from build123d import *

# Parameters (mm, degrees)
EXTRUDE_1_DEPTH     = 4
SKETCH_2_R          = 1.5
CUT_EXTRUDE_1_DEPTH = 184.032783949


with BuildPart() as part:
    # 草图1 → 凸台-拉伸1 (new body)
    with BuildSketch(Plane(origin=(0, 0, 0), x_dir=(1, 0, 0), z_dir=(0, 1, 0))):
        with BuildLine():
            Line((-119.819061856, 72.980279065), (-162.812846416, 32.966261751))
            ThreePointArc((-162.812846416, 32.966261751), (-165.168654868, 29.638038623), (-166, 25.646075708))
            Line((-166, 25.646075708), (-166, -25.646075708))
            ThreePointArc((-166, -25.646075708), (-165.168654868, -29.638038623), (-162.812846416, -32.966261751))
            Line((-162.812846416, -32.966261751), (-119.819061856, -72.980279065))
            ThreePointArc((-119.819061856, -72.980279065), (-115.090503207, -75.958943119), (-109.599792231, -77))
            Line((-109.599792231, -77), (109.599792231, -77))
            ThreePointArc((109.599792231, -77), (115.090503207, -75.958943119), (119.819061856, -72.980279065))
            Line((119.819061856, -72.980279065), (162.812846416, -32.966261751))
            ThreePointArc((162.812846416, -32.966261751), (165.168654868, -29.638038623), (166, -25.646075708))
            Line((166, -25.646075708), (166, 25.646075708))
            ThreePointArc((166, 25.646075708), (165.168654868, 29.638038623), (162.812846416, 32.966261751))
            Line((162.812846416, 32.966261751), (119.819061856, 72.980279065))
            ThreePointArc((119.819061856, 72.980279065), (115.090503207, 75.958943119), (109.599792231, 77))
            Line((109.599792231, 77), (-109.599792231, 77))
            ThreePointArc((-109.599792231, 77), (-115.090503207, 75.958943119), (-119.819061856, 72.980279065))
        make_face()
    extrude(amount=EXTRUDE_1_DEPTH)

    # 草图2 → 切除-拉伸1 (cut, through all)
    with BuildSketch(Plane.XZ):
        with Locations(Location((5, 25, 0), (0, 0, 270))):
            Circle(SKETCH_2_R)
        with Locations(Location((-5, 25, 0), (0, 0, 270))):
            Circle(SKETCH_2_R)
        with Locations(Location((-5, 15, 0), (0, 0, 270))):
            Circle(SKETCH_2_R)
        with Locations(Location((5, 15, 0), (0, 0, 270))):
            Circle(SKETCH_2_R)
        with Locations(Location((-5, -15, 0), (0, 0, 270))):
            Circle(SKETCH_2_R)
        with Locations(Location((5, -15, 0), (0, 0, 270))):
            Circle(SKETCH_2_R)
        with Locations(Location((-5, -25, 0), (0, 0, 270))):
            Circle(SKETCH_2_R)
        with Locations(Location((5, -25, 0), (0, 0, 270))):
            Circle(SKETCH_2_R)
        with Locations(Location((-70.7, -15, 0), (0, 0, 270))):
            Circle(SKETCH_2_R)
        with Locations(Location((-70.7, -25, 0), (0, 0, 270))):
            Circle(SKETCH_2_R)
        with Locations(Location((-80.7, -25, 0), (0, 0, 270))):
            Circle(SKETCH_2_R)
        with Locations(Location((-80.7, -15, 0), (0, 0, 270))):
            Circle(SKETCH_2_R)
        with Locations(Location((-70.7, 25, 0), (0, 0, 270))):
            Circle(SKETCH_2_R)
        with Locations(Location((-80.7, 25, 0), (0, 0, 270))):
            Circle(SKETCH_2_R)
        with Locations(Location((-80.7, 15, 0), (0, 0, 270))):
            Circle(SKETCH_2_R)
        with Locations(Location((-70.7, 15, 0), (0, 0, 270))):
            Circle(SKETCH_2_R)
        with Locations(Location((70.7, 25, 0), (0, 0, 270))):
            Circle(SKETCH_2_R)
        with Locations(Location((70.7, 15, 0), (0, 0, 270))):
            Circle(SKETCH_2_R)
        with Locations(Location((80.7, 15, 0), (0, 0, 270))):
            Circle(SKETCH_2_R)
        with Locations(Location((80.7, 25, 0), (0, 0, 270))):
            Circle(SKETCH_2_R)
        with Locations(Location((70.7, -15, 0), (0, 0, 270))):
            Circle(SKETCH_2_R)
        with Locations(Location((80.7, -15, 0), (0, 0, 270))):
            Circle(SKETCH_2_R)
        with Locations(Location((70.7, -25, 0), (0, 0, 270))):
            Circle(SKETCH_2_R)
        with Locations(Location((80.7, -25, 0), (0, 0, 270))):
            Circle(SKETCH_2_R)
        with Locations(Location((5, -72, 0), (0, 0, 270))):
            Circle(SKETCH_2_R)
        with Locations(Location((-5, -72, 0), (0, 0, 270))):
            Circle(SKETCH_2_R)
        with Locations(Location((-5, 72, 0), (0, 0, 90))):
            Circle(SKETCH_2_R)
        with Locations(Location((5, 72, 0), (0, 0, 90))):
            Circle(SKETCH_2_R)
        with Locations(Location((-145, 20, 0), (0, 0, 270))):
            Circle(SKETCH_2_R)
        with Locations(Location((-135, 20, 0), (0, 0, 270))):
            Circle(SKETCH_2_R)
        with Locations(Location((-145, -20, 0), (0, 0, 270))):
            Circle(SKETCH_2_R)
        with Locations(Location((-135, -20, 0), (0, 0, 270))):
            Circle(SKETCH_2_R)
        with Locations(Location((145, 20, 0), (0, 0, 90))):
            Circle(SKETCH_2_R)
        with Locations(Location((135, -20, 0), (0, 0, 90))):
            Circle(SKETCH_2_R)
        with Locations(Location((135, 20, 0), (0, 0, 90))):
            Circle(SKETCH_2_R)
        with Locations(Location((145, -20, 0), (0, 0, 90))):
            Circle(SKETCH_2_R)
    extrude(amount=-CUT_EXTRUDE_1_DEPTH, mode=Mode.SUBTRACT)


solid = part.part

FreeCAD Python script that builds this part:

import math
import FreeCAD as App
import Part
import Sketcher

V = App.Vector
Q = App.Units.Quantity

doc = App.newDocument("Part")
body = doc.addObject("PartDesign::Body", "Body")

sketch1 = body.newObject("Sketcher::SketchObject", "Sketch")
sketch1.AttachmentSupport = (doc.getObject("XZ_Plane"), [""])
sketch1.MapMode = "FlatFace"
sketch1.addGeometry([
    Part.LineSegment(V(-120, -73, 0), V(-163, -33, 0)),
    Part.ArcOfCircle(Part.Circle(V(-156, -26, 0), V(0, 0, 1), 10), math.radians(180), math.radians(227)),
    Part.LineSegment(V(-166, -26, 0), V(-166, 26, 0)),
    Part.ArcOfCircle(Part.Circle(V(-156, 26, 0), V(0, 0, 1), 10), math.radians(133), math.radians(180)),
    Part.LineSegment(V(-163, 33, 0), V(-120, 73, 0)),
    Part.ArcOfCircle(Part.Circle(V(-110, 62, 0), V(0, 0, 1), 15), math.radians(90), math.radians(133)),
    Part.LineSegment(V(-110, 77, 0), V(110, 77, 0)),
    Part.ArcOfCircle(Part.Circle(V(110, 62, 0), V(0, 0, 1), 15), math.radians(47), math.radians(90)),
    Part.LineSegment(V(120, 73, 0), V(163, 33, 0)),
    Part.ArcOfCircle(Part.Circle(V(156, 26, 0), V(0, 0, 1), 10), math.radians(0), math.radians(47)),
    Part.LineSegment(V(166, 26, 0), V(166, -26, 0)),
    Part.ArcOfCircle(Part.Circle(V(156, -26, 0), V(0, 0, 1), 10), math.radians(-47), math.radians(0)),
    Part.LineSegment(V(163, -33, 0), V(120, -73, 0)),
    Part.ArcOfCircle(Part.Circle(V(110, -62, 0), V(0, 0, 1), 15), math.radians(-90), math.radians(-47)),
    Part.LineSegment(V(110, -77, 0), V(-110, -77, 0)),
    Part.ArcOfCircle(Part.Circle(V(-110, -62, 0), V(0, 0, 1), 15), math.radians(-133), math.radians(-90)),
], False)
sketch1.addConstraint([
    Sketcher.Constraint("Tangent", 0, 2, 1, 2),
    Sketcher.Constraint("Tangent", 1, 1, 2, 1),
    Sketcher.Constraint("Tangent", 2, 2, 3, 2),
    Sketcher.Constraint("Tangent", 3, 1, 4, 1),
    Sketcher.Constraint("Tangent", 4, 2, 5, 2),
    Sketcher.Constraint("Tangent", 5, 1, 6, 1),
    Sketcher.Constraint("Tangent", 6, 2, 7, 2),
    Sketcher.Constraint("Tangent", 7, 1, 8, 1),
    Sketcher.Constraint("Tangent", 8, 2, 9, 2),
    Sketcher.Constraint("Tangent", 9, 1, 10, 1),
    Sketcher.Constraint("Tangent", 10, 2, 11, 2),
    Sketcher.Constraint("Tangent", 11, 1, 12, 1),
    Sketcher.Constraint("Tangent", 12, 2, 13, 2),
    Sketcher.Constraint("Tangent", 13, 1, 14, 1),
    Sketcher.Constraint("Tangent", 14, 2, 15, 2),
    Sketcher.Constraint("Tangent", 15, 1, 0, 1),
    Sketcher.Constraint("Vertical", 2),
    Sketcher.Constraint("Horizontal", 6),
    Sketcher.Constraint("Vertical", 10),
    Sketcher.Constraint("Horizontal", 14),
    Sketcher.Constraint("Equal", 1, 3),
    Sketcher.Constraint("Equal", 5, 7),
    Sketcher.Constraint("Equal", 3, 9),
    Sketcher.Constraint("Equal", 9, 11),
    Sketcher.Constraint("Equal", 7, 13),
    Sketcher.Constraint("Equal", 13, 15),
    Sketcher.Constraint("Symmetric", 1, 3, 9, 3, -1, 1),
    Sketcher.Constraint("Symmetric", 5, 3, 13, 3, -1, 1),
    Sketcher.Constraint("Symmetric", 4, 2, 7, 1, -2),
    Sketcher.Constraint("Symmetric", 0, 2, 11, 1, -2),
    Sketcher.Constraint("Radius", 1, Q("10 mm")),
    Sketcher.Constraint("Radius", 5, Q("15 mm")),
    Sketcher.Constraint("DistanceX", 1, 3, -1, 1, Q("156 mm")),
    Sketcher.Constraint("DistanceY", -1, 1, 5, 3, Q("62 mm")),
    Sketcher.Constraint("DistanceY", 2, 1, 2, 2, Q("51.292151 mm")),
    Sketcher.Constraint("DistanceX", 6, 1, 6, 2, Q("219.199584 mm")),
])
pad1 = body.newObject("PartDesign::Pad", "Pad")
pad1.Profile = sketch1
pad1.Length = 4
pad1.Reversed = True

sketch2 = body.newObject("Sketcher::SketchObject", "Sketch001")
sketch2.AttachmentSupport = (doc.getObject("XZ_Plane"), [""])
sketch2.MapMode = "FlatFace"
sketch2.addGeometry([
    Part.Circle(V(5, 25, 0), V(0, 0, 1), 1.5),
    Part.Circle(V(-5, 25, 0), V(0, 0, 1), 1.5),
    Part.Circle(V(-5, 15, 0), V(0, 0, 1), 1.5),
    Part.Circle(V(5, 15, 0), V(0, 0, 1), 1.5),
    Part.Circle(V(-5, -15, 0), V(0, 0, 1), 1.5),
    Part.Circle(V(5, -15, 0), V(0, 0, 1), 1.5),
    Part.Circle(V(-5, -25, 0), V(0, 0, 1), 1.5),
    Part.Circle(V(5, -25, 0), V(0, 0, 1), 1.5),
    Part.Circle(V(-70.7, -15, 0), V(0, 0, 1), 1.5),
    Part.Circle(V(-70.7, -25, 0), V(0, 0, 1), 1.5),
    Part.Circle(V(-80.7, -25, 0), V(0, 0, 1), 1.5),
    Part.Circle(V(-80.7, -15, 0), V(0, 0, 1), 1.5),
    Part.Circle(V(-70.7, 25, 0), V(0, 0, 1), 1.5),
    Part.Circle(V(-80.7, 25, 0), V(0, 0, 1), 1.5),
    Part.Circle(V(-80.7, 15, 0), V(0, 0, 1), 1.5),
    Part.Circle(V(-70.7, 15, 0), V(0, 0, 1), 1.5),
    Part.Circle(V(70.7, 25, 0), V(0, 0, 1), 1.5),
    Part.Circle(V(70.7, 15, 0), V(0, 0, 1), 1.5),
    Part.Circle(V(80.7, 15, 0), V(0, 0, 1), 1.5),
    Part.Circle(V(80.7, 25, 0), V(0, 0, 1), 1.5),
    Part.Circle(V(70.7, -15, 0), V(0, 0, 1), 1.5),
    Part.Circle(V(80.7, -15, 0), V(0, 0, 1), 1.5),
    Part.Circle(V(70.7, -25, 0), V(0, 0, 1), 1.5),
    Part.Circle(V(80.7, -25, 0), V(0, 0, 1), 1.5),
    Part.Circle(V(5, -72, 0), V(0, 0, 1), 1.5),
    Part.Circle(V(-5, -72, 0), V(0, 0, 1), 1.5),
    Part.Circle(V(-5, 72, 0), V(0, 0, 1), 1.5),
    Part.Circle(V(5, 72, 0), V(0, 0, 1), 1.5),
    Part.Circle(V(-145, 20, 0), V(0, 0, 1), 1.5),
    Part.Circle(V(-135, 20, 0), V(0, 0, 1), 1.5),
    Part.Circle(V(-145, -20, 0), V(0, 0, 1), 1.5),
    Part.Circle(V(-135, -20, 0), V(0, 0, 1), 1.5),
    Part.Circle(V(145, 20, 0), V(0, 0, 1), 1.5),
    Part.Circle(V(135, -20, 0), V(0, 0, 1), 1.5),
    Part.Circle(V(135, 20, 0), V(0, 0, 1), 1.5),
    Part.Circle(V(145, -20, 0), V(0, 0, 1), 1.5),
], False)
sketch2.addConstraint([
    Sketcher.Constraint("Equal", 0, 1),
    Sketcher.Constraint("Equal", 1, 2),
    Sketcher.Constraint("Equal", 2, 3),
    Sketcher.Constraint("Equal", 3, 4),
    Sketcher.Constraint("Equal", 4, 5),
    Sketcher.Constraint("Equal", 5, 6),
    Sketcher.Constraint("Equal", 6, 7),
    Sketcher.Constraint("Equal", 7, 8),
    Sketcher.Constraint("Equal", 8, 9),
    Sketcher.Constraint("Equal", 9, 10),
    Sketcher.Constraint("Equal", 10, 11),
    Sketcher.Constraint("Equal", 11, 12),
    Sketcher.Constraint("Equal", 12, 13),
    Sketcher.Constraint("Equal", 13, 14),
    Sketcher.Constraint("Equal", 14, 15),
    Sketcher.Constraint("Equal", 15, 16),
    Sketcher.Constraint("Equal", 16, 17),
    Sketcher.Constraint("Equal", 17, 18),
    Sketcher.Constraint("Equal", 18, 19),
    Sketcher.Constraint("Equal", 19, 20),
    Sketcher.Constraint("Equal", 20, 21),
    Sketcher.Constraint("Equal", 21, 22),
    Sketcher.Constraint("Equal", 22, 23),
    Sketcher.Constraint("Equal", 23, 24),
    Sketcher.Constraint("Equal", 24, 25),
    Sketcher.Constraint("Equal", 25, 26),
    Sketcher.Constraint("Equal", 26, 27),
    Sketcher.Constraint("Equal", 27, 28),
    Sketcher.Constraint("Equal", 28, 29),
    Sketcher.Constraint("Equal", 29, 30),
    Sketcher.Constraint("Equal", 30, 31),
    Sketcher.Constraint("Equal", 31, 32),
    Sketcher.Constraint("Equal", 32, 33),
    Sketcher.Constraint("Equal", 33, 34),
    Sketcher.Constraint("Equal", 34, 35),
    Sketcher.Constraint("Symmetric", 3, 3, 4, 3, -1, 1),
    Sketcher.Constraint("Symmetric", 2, 3, 5, 3, -1, 1),
    Sketcher.Constraint("Symmetric", 0, 3, 6, 3, -1, 1),
    Sketcher.Constraint("Symmetric", 1, 3, 7, 3, -1, 1),
    Sketcher.Constraint("Symmetric", 9, 3, 16, 3, -1, 1),
    Sketcher.Constraint("Symmetric", 8, 3, 17, 3, -1, 1),
    Sketcher.Constraint("Symmetric", 11, 3, 18, 3, -1, 1),
    Sketcher.Constraint("Symmetric", 10, 3, 19, 3, -1, 1),
    Sketcher.Constraint("Symmetric", 15, 3, 20, 3, -1, 1),
    Sketcher.Constraint("Symmetric", 14, 3, 21, 3, -1, 1),
    Sketcher.Constraint("Symmetric", 12, 3, 22, 3, -1, 1),
    Sketcher.Constraint("Symmetric", 13, 3, 23, 3, -1, 1),
    Sketcher.Constraint("Symmetric", 24, 3, 26, 3, -1, 1),
    Sketcher.Constraint("Symmetric", 25, 3, 27, 3, -1, 1),
    Sketcher.Constraint("Symmetric", 30, 3, 32, 3, -1, 1),
    Sketcher.Constraint("Symmetric", 29, 3, 33, 3, -1, 1),
    Sketcher.Constraint("Symmetric", 31, 3, 34, 3, -1, 1),
    Sketcher.Constraint("Symmetric", 28, 3, 35, 3, -1, 1),
    Sketcher.Constraint("Symmetric", 0, 3, 1, 3, -2),
    Sketcher.Constraint("Symmetric", 2, 3, 3, 3, -2),
    Sketcher.Constraint("Symmetric", 12, 3, 16, 3, -2),
    Sketcher.Constraint("Symmetric", 15, 3, 17, 3, -2),
    Sketcher.Constraint("Symmetric", 14, 3, 18, 3, -2),
    Sketcher.Constraint("Symmetric", 13, 3, 19, 3, -2),
    Sketcher.Constraint("Symmetric", 24, 3, 25, 3, -2),
    Sketcher.Constraint("Symmetric", 28, 3, 32, 3, -2),
    Sketcher.Constraint("Symmetric", 31, 3, 33, 3, -2),
    Sketcher.Constraint("Horizontal", 5, 3, 8, 3),
    Sketcher.Constraint("Horizontal", 7, 3, 9, 3),
    Sketcher.Constraint("Horizontal", 9, 3, 10, 3),
    Sketcher.Constraint("Horizontal", 8, 3, 11, 3),
    Sketcher.Constraint("Horizontal", 28, 3, 29, 3),
    Sketcher.Constraint("Vertical", 1, 3, 2, 3),
    Sketcher.Constraint("Vertical", 8, 3, 9, 3),
    Sketcher.Constraint("Vertical", 10, 3, 11, 3),
    Sketcher.Constraint("Vertical", 7, 3, 24, 3),
    Sketcher.Constraint("Diameter", 0, Q("3 mm")),
    Sketcher.Constraint("DistanceX", -1, 1, 0, 3, Q("5 mm")),
    Sketcher.Constraint("DistanceY", -1, 1, 0, 3, Q("25 mm")),
    Sketcher.Constraint("DistanceY", -1, 1, 2, 3, Q("15 mm")),
    Sketcher.Constraint("DistanceY", 24, 3, -1, 1, Q("72 mm")),
    Sketcher.Constraint("DistanceX", 28, 3, -1, 1, Q("145 mm")),
    Sketcher.Constraint("DistanceY", -1, 1, 28, 3, Q("20 mm")),
    Sketcher.Constraint("DistanceX", 29, 3, -1, 1, Q("135 mm")),
    Sketcher.Constraint("DistanceX", 10, 3, 9, 3, Q("10 mm")),
    Sketcher.Constraint("DistanceX", 8, 3, -1, 1, Q("70.7 mm")),
])
pocket1 = body.newObject("PartDesign::Pocket", "Pocket")
pocket1.Profile = sketch2
pocket1.Type = "ThroughAll"

doc.recompute()
